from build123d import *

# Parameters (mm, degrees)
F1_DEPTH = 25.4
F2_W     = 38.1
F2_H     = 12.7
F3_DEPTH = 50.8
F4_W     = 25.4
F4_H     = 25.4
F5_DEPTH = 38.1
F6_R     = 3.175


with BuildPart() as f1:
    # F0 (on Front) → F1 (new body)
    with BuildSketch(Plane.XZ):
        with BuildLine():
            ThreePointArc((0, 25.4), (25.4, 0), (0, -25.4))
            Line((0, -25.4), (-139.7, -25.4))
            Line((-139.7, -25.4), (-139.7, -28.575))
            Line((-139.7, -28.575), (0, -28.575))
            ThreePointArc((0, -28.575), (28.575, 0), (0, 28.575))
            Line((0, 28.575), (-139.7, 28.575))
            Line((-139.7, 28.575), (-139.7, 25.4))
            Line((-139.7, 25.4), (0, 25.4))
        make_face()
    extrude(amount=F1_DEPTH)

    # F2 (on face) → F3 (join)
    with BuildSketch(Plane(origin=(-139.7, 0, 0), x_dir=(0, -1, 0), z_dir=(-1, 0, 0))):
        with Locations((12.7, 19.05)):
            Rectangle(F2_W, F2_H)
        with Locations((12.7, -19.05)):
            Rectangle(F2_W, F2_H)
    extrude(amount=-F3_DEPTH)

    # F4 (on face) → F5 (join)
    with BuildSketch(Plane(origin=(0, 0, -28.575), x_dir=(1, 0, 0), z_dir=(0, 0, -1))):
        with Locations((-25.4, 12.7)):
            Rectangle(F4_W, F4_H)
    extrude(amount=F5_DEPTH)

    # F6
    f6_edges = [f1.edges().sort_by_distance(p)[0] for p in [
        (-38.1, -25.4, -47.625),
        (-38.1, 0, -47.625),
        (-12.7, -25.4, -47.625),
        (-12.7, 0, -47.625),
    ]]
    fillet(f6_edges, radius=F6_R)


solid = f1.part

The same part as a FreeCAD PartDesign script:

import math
import FreeCAD as App
import Part
import Sketcher
Q = App.Units.Quantity


def edges_at(feature, points):
    """Names of the edges that pass closest to the given points."""
    edges = feature.Shape.Edges
    near = lambda p: min(range(len(edges)), key=lambda i: edges[i].distToShape(Part.Vertex(*p))[0])
    return sorted({f"Edge{near(p) + 1}" for p in points})

doc = App.newDocument("Part")
body = doc.addObject("PartDesign::Body", "Body")

# Sketch on XZ plane
sketch1 = body.newObject("Sketcher::SketchObject", "Sketch")
sketch1.AttachmentSupport = (doc.getObject("XZ_Plane"), [""])
sketch1.MapMode = "FlatFace"
sketch1.addGeometry([
    Part.ArcOfCircle(Part.Circle(App.Vector(0, 0, 0), App.Vector(0, 0, 1), 25.4), math.radians(-90), math.radians(90)),  # 0
    Part.LineSegment(App.Vector(0, -25.4, 0), App.Vector(-139.7, -25.4, 0)),  # 1
    Part.LineSegment(App.Vector(-139.7, -25.4, 0), App.Vector(-139.7, -28.575, 0)),  # 2
    Part.LineSegment(App.Vector(-139.7, -28.575, 0), App.Vector(0, -28.575, 0)),  # 3
    Part.ArcOfCircle(Part.Circle(App.Vector(0, 0, 0), App.Vector(0, 0, 1), 28.575), math.radians(-90), math.radians(90)),  # 4
    Part.LineSegment(App.Vector(0, 28.575, 0), App.Vector(-139.7, 28.575, 0)),  # 5
    Part.LineSegment(App.Vector(-139.7, 28.575, 0), App.Vector(-139.7, 25.4, 0)),  # 6
    Part.LineSegment(App.Vector(-139.7, 25.4, 0), App.Vector(0, 25.4, 0)),  # 7
], False)
sketch1.addConstraint([
    Sketcher.Constraint("Tangent", 0, 1, 1, 1),
    Sketcher.Constraint("Coincident", 1, 2, 2, 1),
    Sketcher.Constraint("Coincident", 2, 2, 3, 1),
    Sketcher.Constraint("Tangent", 3, 2, 4, 1),
    Sketcher.Constraint("Tangent", 4, 2, 5, 1),
    Sketcher.Constraint("Coincident", 5, 2, 6, 1),
    Sketcher.Constraint("Coincident", 6, 2, 7, 1),
    Sketcher.Constraint("Tangent", 7, 2, 0, 2),
    Sketcher.Constraint("Horizontal", 1),
    Sketcher.Constraint("Vertical", 2),
    Sketcher.Constraint("Horizontal", 3),
    Sketcher.Constraint("Horizontal", 5),
    Sketcher.Constraint("Vertical", 6),
    Sketcher.Constraint("Horizontal", 7),
    Sketcher.Constraint("Coincident", 0, 3, -1, 1),
    Sketcher.Constraint("Coincident", 4, 3, -1, 1),
    Sketcher.Constraint("Vertical", 2, 2, 5, 2),
    Sketcher.Constraint("Radius", 0, Q("1 in")),
    Sketcher.Constraint("DistanceX", 1, 2, 1, 1, Q("5.5 in")),
    Sketcher.Constraint("Radius", 4, Q("1.125 in")),
])
pad1 = body.newObject("PartDesign::Pad", "Pad")
pad1.Profile = sketch1
pad1.Length = Q("1 in")

# Sketch on YZ plane
sketch2 = body.newObject("Sketcher::SketchObject", "Sketch001")
sketch2.AttachmentSupport = (doc.getObject("YZ_Plane"), [""])
sketch2.MapMode = "FlatFace"
sketch2.AttachmentOffset = App.Placement(App.Vector(0, 0, -5.5 * 25.4), App.Rotation())
sketch2.addGeometry([
    Part.LineSegment(App.Vector(6.35, 25.4, 0), App.Vector(6.35, 12.7, 0)),  # 0
    Part.LineSegment(App.Vector(6.35, 12.7, 0), App.Vector(-31.75, 12.7, 0)),  # 1
    Part.LineSegment(App.Vector(-31.75, 12.7, 0), App.Vector(-31.75, 25.4, 0)),  # 2
    Part.LineSegment(App.Vector(-31.75, 25.4, 0), App.Vector(6.35, 25.4, 0)),  # 3
    Part.LineSegment(App.Vector(6.35, -12.7, 0), App.Vector(6.35, -25.4, 0)),  # 4
    Part.LineSegment(App.Vector(6.35, -25.4, 0), App.Vector(-31.75, -25.4, 0)),  # 5
    Part.LineSegment(App.Vector(-31.75, -25.4, 0), App.Vector(-31.75, -12.7, 0)),  # 6
    Part.LineSegment(App.Vector(-31.75, -12.7, 0), App.Vector(6.35, -12.7, 0)),  # 7
], False)
sketch2.addConstraint([
    Sketcher.Constraint("Coincident", 0, 2, 1, 1),
    Sketcher.Constraint("Coincident", 1, 2, 2, 1),
    Sketcher.Constraint("Coincident", 2, 2, 3, 1),
    Sketcher.Constraint("Coincident", 3, 2, 0, 1),
    Sketcher.Constraint("Coincident", 4, 2, 5, 1),
    Sketcher.Constraint("Coincident", 5, 2, 6, 1),
    Sketcher.Constraint("Coincident", 6, 2, 7, 1),
    Sketcher.Constraint("Coincident", 7, 2, 4, 1),
    Sketcher.Constraint("Vertical", 0),
    Sketcher.Constraint("Horizontal", 1),
    Sketcher.Constraint("Vertical", 2),
    Sketcher.Constraint("Horizontal", 3),
    Sketcher.Constraint("Vertical", 4),
    Sketcher.Constraint("Horizontal", 5),
    Sketcher.Constraint("Vertical", 6),
    Sketcher.Constraint("Horizontal", 7),
    Sketcher.Constraint("Symmetric", 3, 2, 4, 2, -1),
    Sketcher.Constraint("Symmetric", 1, 2, 6, 2, -1),
    Sketcher.Constraint("DistanceX", 1, 2, 1, 1, Q("1.5 in")),
    Sketcher.Constraint("DistanceY", 0, 2, 0, 1, Q("0.5 in")),
    Sketcher.Constraint("DistanceY", -1, 1, 2, 2, Q("1 in")),
    Sketcher.Constraint("DistanceX", -1, 1, 0, 2, Q("0.25 in")),
])
pad2 = body.newObject("PartDesign::Pad", "Pad001")
pad2.Profile = sketch2
pad2.Length = Q("2 in")

# Sketch on XY plane
sketch3 = body.newObject("Sketcher::SketchObject", "Sketch002")
sketch3.AttachmentSupport = (doc.getObject("XY_Plane"), [""])
sketch3.MapMode = "FlatFace"
sketch3.AttachmentOffset = App.Placement(App.Vector(0, 0, -1.125 * 25.4), App.Rotation())
sketch3.addGeometry([
    Part.LineSegment(App.Vector(-38.1, -25.4, 0), App.Vector(-38.1, 0, 0)),
    Part.LineSegment(App.Vector(-38.1, 0, 0), App.Vector(-12.7, 0, 0)),
    Part.LineSegment(App.Vector(-12.7, 0, 0), App.Vector(-12.7, -25.4, 0)),
    Part.LineSegment(App.Vector(-12.7, -25.4, 0), App.Vector(-38.1, -25.4, 0)),
], False)
sketch3.addConstraint([
    Sketcher.Constraint("Coincident", 0, 2, 1, 1),
    Sketcher.Constraint("Coincident", 1, 2, 2, 1),
    Sketcher.Constraint("Coincident", 2, 2, 3, 1),
    Sketcher.Constraint("Coincident", 3, 2, 0, 1),
    Sketcher.Constraint("Vertical", 0),
    Sketcher.Constraint("Horizontal", 1),
    Sketcher.Constraint("Vertical", 2),
    Sketcher.Constraint("Horizontal", 3),
    Sketcher.Constraint("PointOnObject", 0, 2, -1),
    Sketcher.Constraint("Equal", 3, 0),
    Sketcher.Constraint("DistanceX", 1, 1, 1, 2, Q("1 in")),
    Sketcher.Constraint("DistanceX", 0, 2, -1, 1, Q("1.5 in")),
])
pad3 = body.newObject("PartDesign::Pad", "Pad002")
pad3.Profile = sketch3
pad3.Length = Q("1.5 in")
pad3.Reversed = True
doc.recompute()

fillet = body.newObject("PartDesign::Fillet", "Fillet")
fillet.Base = (pad3, edges_at(pad3, [
    (-38.1, -25.4, -47.625),
    (-38.1, 0, -47.625),
    (-12.7, -25.4, -47.625),
    (-12.7, 0, -47.625),
]))
fillet.Radius = Q("0.125 in")

doc.recompute()
